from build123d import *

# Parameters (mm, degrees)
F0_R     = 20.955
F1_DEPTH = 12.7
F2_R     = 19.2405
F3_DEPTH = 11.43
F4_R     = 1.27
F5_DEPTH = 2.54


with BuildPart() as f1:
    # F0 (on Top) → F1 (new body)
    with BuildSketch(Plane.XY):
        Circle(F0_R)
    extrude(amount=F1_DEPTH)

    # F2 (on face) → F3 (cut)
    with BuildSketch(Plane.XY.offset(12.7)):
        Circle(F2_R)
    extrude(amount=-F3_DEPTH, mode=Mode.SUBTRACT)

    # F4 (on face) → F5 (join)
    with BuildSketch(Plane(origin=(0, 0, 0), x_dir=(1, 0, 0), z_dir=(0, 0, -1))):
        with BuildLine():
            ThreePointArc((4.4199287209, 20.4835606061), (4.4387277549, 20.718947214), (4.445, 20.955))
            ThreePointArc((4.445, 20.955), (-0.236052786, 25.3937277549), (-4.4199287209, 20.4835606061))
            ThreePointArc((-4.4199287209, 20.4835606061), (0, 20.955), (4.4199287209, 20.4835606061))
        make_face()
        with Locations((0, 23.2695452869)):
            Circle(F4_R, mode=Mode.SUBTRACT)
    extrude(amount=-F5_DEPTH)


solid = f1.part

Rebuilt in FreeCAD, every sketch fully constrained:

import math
import FreeCAD as App
import Part
import Sketcher
Q = App.Units.Quantity

doc = App.newDocument("Part")
body = doc.addObject("PartDesign::Body", "Body")

# Sketch on XY plane
sketch1 = body.newObject("Sketcher::SketchObject", "Sketch")
sketch1.AttachmentSupport = (doc.getObject("XY_Plane"), [""])
sketch1.MapMode = "FlatFace"
sketch1.addGeometry(Part.Circle(App.Vector(0, 0, 0), App.Vector(0, 0, 1), 21), False)
sketch1.addConstraint([
    Sketcher.Constraint("Coincident", 0, 3, -1, 1),
    Sketcher.Constraint("Diameter", 0, Q("1.65 in")),
])
pad1 = body.newObject("PartDesign::Pad", "Pad")
pad1.Profile = sketch1
pad1.Length = Q("0.5 in")

# Sketch on XY plane
sketch2 = body.newObject("Sketcher::SketchObject", "Sketch001")
sketch2.AttachmentSupport = (doc.getObject("XY_Plane"), [""])
sketch2.MapMode = "FlatFace"
sketch2.AttachmentOffset = App.Placement(App.Vector(0, 0, 0.5 * 25.4), App.Rotation())
sketch2.addGeometry(Part.Circle(App.Vector(0, 0, 0), App.Vector(0, 0, 1), 19), False)
sketch2.addConstraint([
    Sketcher.Constraint("Coincident", 0, 3, -1, 1),
    Sketcher.Constraint("Diameter", 0, Q("1.515 in")),
])
pocket1 = body.newObject("PartDesign::Pocket", "Pocket")
pocket1.Profile = sketch2
pocket1.Length = Q("0.45 in")

# Sketch on XY plane
sketch3 = body.newObject("Sketcher::SketchObject", "Sketch002")
sketch3.AttachmentSupport = (doc.getObject("XY_Plane"), [""])
sketch3.MapMode = "FlatFace"
sketch3.addGeometry([
    Part.ArcOfCircle(Part.Circle(App.Vector(0, -20.95, 0), App.Vector(0, 0, 1), 4.45), math.radians(0), math.radians(6.09)),
    Part.ArcOfCircle(Part.Circle(App.Vector(0, -20.95, 0), App.Vector(0, 0, 1), 4.45), math.radians(174), math.radians(360)),
    Part.ArcOfCircle(Part.Circle(App.Vector(0, 0, 0), App.Vector(0, 0, 1), 20.96), math.radians(-102), math.radians(-78)),
    Part.Circle(App.Vector(0, -23.27, 0), App.Vector(0, 0, 1), 1.27),
], False)
sketch3.addConstraint([
    Sketcher.Constraint("Tangent", 0, 1, 1, 2),
    Sketcher.Constraint("Coincident", 1, 1, 2, 1),
    Sketcher.Constraint("Coincident", 2, 2, 0, 2),
    Sketcher.Constraint("Coincident", 2, 3, -1, 1),
    Sketcher.Constraint("Equal", 0, 1),
    Sketcher.Constraint("PointOnObject", 0, 3, -2),
    Sketcher.Constraint("PointOnObject", 3, 3, -2),
    Sketcher.Constraint("Horizontal", 1, 3, 0, 1),
    Sketcher.Constraint("Diameter", 3, Q("0.1 in")),
    Sketcher.Constraint("Radius", 0, Q("0.175 in")),
    Sketcher.Constraint("Radius", 2, Q("0.825 in")),
    Sketcher.Constraint("DistanceY", 0, 3, -1, 1, Q("0.825 in")),
    Sketcher.Constraint("DistanceY", 3, 3, -1, 1, 23.269545),
])
pad2 = body.newObject("PartDesign::Pad", "Pad001")
pad2.Profile = sketch3
pad2.Length = Q("0.1 in")

doc.recompute()
